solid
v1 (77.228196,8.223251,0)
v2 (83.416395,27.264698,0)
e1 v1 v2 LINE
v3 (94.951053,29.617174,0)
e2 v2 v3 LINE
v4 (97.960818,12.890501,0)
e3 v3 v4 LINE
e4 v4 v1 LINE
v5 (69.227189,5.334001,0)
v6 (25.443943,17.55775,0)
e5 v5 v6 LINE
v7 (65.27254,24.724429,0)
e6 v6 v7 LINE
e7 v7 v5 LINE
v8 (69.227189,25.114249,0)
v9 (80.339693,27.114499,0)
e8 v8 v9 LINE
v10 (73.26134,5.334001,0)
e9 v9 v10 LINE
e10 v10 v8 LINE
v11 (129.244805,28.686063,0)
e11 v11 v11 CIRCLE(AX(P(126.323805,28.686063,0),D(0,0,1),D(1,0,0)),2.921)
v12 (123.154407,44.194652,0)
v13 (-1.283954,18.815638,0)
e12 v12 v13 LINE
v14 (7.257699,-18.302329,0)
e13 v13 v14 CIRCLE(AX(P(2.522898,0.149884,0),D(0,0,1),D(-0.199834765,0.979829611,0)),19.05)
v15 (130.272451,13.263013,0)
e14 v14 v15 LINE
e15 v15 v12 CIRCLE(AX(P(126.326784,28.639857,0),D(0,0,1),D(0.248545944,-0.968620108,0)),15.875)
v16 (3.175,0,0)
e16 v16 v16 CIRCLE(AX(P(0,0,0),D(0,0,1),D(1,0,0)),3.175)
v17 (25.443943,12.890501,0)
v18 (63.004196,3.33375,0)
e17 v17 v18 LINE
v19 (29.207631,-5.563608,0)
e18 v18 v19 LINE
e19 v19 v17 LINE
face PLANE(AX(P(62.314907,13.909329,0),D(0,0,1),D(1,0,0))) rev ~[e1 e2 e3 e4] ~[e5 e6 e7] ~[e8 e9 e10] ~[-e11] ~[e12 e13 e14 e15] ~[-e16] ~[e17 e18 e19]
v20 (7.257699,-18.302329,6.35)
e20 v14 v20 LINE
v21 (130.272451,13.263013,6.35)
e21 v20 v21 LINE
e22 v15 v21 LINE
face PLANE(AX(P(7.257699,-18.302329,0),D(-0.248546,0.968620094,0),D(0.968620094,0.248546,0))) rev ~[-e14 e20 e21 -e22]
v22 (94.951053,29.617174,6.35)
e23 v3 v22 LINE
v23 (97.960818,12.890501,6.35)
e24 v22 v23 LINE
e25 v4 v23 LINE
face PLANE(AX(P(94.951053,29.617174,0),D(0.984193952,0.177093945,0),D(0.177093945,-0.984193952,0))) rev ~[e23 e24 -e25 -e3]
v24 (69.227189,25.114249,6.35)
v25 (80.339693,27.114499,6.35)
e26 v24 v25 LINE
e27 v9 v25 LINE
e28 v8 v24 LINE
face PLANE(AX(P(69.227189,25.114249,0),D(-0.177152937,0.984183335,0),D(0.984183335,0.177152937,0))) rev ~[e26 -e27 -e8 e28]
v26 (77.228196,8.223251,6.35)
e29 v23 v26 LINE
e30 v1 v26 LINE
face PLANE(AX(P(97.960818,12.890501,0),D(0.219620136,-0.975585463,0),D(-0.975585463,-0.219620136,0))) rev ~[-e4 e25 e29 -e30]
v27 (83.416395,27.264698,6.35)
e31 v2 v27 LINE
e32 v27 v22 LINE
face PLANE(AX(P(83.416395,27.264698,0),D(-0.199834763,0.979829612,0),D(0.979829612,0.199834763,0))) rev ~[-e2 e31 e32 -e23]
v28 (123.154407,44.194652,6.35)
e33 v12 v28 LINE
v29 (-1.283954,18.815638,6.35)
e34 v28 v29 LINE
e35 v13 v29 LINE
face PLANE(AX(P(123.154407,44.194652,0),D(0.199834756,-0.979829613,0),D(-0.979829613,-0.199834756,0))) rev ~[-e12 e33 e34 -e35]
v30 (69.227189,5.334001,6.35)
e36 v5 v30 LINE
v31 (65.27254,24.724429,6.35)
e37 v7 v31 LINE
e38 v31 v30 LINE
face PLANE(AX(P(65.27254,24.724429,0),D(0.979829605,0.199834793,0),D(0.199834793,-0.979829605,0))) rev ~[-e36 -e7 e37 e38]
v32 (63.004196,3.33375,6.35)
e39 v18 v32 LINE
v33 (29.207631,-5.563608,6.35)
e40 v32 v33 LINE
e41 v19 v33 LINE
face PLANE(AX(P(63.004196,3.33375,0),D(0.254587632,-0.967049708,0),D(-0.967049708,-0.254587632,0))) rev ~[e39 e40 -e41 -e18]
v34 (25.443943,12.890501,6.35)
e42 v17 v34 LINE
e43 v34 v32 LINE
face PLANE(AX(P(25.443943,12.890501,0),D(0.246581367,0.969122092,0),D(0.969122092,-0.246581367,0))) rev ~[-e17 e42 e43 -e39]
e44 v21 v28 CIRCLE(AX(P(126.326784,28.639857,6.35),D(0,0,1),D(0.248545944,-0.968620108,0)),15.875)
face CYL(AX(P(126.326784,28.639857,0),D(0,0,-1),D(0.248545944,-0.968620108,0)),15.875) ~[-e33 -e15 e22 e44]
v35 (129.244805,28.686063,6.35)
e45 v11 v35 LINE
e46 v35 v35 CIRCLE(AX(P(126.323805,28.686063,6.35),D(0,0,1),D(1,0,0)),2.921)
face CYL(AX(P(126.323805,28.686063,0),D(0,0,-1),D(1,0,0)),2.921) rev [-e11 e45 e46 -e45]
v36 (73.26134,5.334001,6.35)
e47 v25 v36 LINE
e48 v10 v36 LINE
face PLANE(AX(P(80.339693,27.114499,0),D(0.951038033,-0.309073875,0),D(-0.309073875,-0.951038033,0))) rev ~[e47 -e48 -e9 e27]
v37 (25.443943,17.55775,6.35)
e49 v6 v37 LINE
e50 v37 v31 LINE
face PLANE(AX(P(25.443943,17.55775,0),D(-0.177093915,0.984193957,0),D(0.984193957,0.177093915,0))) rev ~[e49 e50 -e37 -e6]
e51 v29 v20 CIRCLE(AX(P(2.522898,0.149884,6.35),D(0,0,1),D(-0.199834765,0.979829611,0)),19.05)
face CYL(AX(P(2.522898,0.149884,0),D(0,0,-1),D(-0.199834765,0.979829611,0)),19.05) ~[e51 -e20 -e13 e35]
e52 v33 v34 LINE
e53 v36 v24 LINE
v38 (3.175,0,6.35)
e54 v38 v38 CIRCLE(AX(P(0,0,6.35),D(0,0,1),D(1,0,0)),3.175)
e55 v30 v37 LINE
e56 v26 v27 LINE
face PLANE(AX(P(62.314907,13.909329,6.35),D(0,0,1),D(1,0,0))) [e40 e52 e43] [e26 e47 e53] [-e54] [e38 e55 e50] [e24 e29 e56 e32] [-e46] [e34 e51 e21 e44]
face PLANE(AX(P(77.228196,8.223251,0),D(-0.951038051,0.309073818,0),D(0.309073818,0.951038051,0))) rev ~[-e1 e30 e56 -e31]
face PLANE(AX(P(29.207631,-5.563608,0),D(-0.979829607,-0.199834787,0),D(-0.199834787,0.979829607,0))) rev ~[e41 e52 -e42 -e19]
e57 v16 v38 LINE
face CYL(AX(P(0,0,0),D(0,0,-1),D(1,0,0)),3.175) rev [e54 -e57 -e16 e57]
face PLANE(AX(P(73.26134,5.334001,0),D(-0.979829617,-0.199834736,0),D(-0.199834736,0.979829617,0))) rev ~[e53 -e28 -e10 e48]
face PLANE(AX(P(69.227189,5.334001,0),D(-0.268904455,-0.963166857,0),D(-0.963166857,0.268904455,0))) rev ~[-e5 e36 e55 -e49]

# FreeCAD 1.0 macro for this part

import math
import FreeCAD as App
import Part
import Sketcher
Q = App.Units.Quantity


def add_polygon(sketch, points):
    """Adds a closed chain of lines whose ends are joined by coincident constraints."""
    first, n = sketch.GeometryCount, len(points)
    for a, b in zip(points, points[1:] + points[:1]):
        sketch.addGeometry(Part.LineSegment(App.Vector(*a, 0), App.Vector(*b, 0)), False)
    for i in range(n):
        sketch.addConstraint(Sketcher.Constraint("Coincident", first + i, 2, first + (i + 1) % n, 1))

doc = App.newDocument("Part")
body = doc.addObject("PartDesign::Body", "Body")

# Sketch on XY plane
sketch1 = body.newObject("Sketcher::SketchObject", "Sketch")
sketch1.AttachmentSupport = (doc.getObject("XY_Plane"), [""])
sketch1.MapMode = "FlatFace"
sketch1.addGeometry(Part.ArcOfCircle(Part.Circle(App.Vector(2.5, 0.1, 0), App.Vector(0, 0, 1), 19), math.radians(102), math.radians(284)), False)  # 0
sketch1.addGeometry(Part.LineSegment(App.Vector(7.3, -18.3, 0), App.Vector(130.3, 13.3, 0)), False)  # 1
sketch1.addGeometry(Part.ArcOfCircle(Part.Circle(App.Vector(126.3, 28.6, 0), App.Vector(0, 0, 1), 15.9), math.radians(-76), math.radians(102)), False)  # 2
sketch1.addGeometry(Part.LineSegment(App.Vector(123.2, 44.2, 0), App.Vector(-1.3, 18.8, 0)), False)  # 3
sketch1.addGeometry(Part.Circle(App.Vector(0, 0, 0), App.Vector(0, 0, 1), 3.2), False)  # 4
add_polygon(sketch1, [(63, 3.3), (29.2, -5.6), (25.4, 12.9)])  # lines 5-7
add_polygon(sketch1, [(65.3, 24.7), (69.2, 5.3), (25.4, 17.6)])  # lines 8-10
add_polygon(sketch1, [(80.3, 27.1), (73.3, 5.3), (69.2, 25.1)])  # lines 11-13
add_polygon(sketch1, [(95, 29.6), (98, 12.9), (77.2, 8.2), (83.4, 27.3)])  # lines 14-17
sketch1.addGeometry(Part.Circle(App.Vector(126.3, 28.7, 0), App.Vector(0, 0, 1), 2.9), False)  # 18
sketch1.addConstraint([
    Sketcher.Constraint("Tangent", 0, 2, 1, 1),
    Sketcher.Constraint("Tangent", 1, 2, 2, 1),
    Sketcher.Constraint("Tangent", 2, 2, 3, 1),
    Sketcher.Constraint("Tangent", 3, 2, 0, 1),
    Sketcher.Constraint("Coincident", 4, 3, -1, 1),
    Sketcher.Constraint("Perpendicular", 3, 6),
    Sketcher.Constraint("Parallel", 6, 8),
    Sketcher.Constraint("Parallel", 8, 12),
    Sketcher.Constraint("Perpendicular", 10, 14),
    Sketcher.Constraint("Parallel", 11, 16),
    Sketcher.Constraint("Perpendicular", 12, 17),
    Sketcher.Constraint("Horizontal", 8, 2, 11, 2),
    Sketcher.Constraint("Horizontal", 6, 2, 14, 2),
    Sketcher.Constraint("Vertical", 6, 2, 9, 2),
    Sketcher.Constraint("Vertical", 8, 2, 12, 2),
    Sketcher.Constraint("Diameter", 4, Q("0.25 in")),
    Sketcher.Constraint("Diameter", 18, Q("0.23 in")),
    Sketcher.Constraint("Radius", 0, Q("0.75 in")),
    Sketcher.Constraint("Distance", 1, Q("5 in")),
    Sketcher.Constraint("Radius", 2, Q("0.625 in")),
    Sketcher.Constraint("DistanceY", -1, 1, 8, 2, Q("0.21 in")),
    Sketcher.Constraint("DistanceY", 14, 2, 13, 2, Q("0.5599999 in")),
    Sketcher.Constraint("DistanceX", 7, 2, 15, 2, Q("0.56 in")),
    Sketcher.Constraint("DistanceY", 15, 2, 12, 2, Q("0.6649999 in")),
    Sketcher.Constraint("DistanceY", -1, 1, 6, 2, Q("0.5075 in")),
    Sketcher.Constraint("DistanceY", 7, 2, 12, 2, Q("0.8575 in")),
    Sketcher.Constraint("DistanceY", 9, 2, 12, 2, Q("0.2975 in")),
    Sketcher.Constraint("DistanceX", 12, 2, 13, 2, Q("0.4375002 in")),
    Sketcher.Constraint("DistanceX", 7, 2, 13, 2, Q("0.6824999 in")),
    Sketcher.Constraint("Distance", 6, 18.833998),
    Sketcher.Constraint("Distance", 14, 16.995302),
    Sketcher.Constraint("DistanceX", -1, 1, 0, 3, 2.522898),
    Sketcher.Constraint("DistanceX", -1, 1, 0, 2, 7.257699),
    Sketcher.Constraint("DistanceX", 2, 2, 18, 3, 3.169398),
    Sketcher.Constraint("DistanceX", 10, 2, 11, 2, 7.9888),
    Sketcher.Constraint("DistanceX", 13, 2, 16, 2, 3.076702),
    Sketcher.Constraint("DistanceY", 13, 2, 16, 2, 0.150199),
    Sketcher.Constraint("Distance", 9, 45.457592),
    Sketcher.Constraint("DistanceY", 0, 2, -1, 1, 18.302329),
    Sketcher.Constraint("DistanceX", -1, 1, 5, 2, 29.207631),
    Sketcher.Constraint("DistanceY", 0, 3, 18, 3, 28.536179),
])
pad1 = body.newObject("PartDesign::Pad", "Pad")
pad1.Profile = sketch1
pad1.Length = Q("0.25 in")

doc.recompute()
